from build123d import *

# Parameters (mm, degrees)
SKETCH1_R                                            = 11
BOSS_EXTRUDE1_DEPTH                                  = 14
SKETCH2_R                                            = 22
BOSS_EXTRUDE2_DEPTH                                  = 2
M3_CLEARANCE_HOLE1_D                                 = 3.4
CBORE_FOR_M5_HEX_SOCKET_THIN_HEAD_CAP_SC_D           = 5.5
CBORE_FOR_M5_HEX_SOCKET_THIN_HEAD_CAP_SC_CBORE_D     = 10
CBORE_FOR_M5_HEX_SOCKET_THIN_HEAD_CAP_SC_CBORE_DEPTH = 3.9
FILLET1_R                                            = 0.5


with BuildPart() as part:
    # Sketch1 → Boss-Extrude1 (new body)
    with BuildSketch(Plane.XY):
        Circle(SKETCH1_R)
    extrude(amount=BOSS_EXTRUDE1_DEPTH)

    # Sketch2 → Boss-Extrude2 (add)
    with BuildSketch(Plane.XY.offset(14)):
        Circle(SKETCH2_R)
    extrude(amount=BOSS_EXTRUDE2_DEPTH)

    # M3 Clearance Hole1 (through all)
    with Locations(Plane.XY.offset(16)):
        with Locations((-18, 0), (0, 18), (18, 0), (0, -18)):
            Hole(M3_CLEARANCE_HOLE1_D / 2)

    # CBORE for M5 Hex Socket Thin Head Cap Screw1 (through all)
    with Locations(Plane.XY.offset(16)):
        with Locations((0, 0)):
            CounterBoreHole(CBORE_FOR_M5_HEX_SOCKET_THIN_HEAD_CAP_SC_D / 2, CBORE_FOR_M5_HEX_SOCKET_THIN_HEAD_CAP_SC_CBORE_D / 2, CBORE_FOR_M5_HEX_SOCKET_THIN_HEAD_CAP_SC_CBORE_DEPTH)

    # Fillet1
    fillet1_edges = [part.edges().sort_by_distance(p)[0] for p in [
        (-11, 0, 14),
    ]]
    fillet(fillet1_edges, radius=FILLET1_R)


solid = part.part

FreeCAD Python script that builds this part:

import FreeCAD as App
import Part
import Sketcher


def edges_at(feature, points):
    """Names of the edges that pass closest to the given points."""
    edges = feature.Shape.Edges
    near = lambda p: min(range(len(edges)), key=lambda i: edges[i].distToShape(Part.Vertex(*p))[0])
    return sorted({f"Edge{near(p) + 1}" for p in points})

doc = App.newDocument("Part")
body = doc.addObject("PartDesign::Body", "Body")

# Sketch on XY plane
sketch1 = body.newObject("Sketcher::SketchObject", "Sketch")
sketch1.AttachmentSupport = (doc.getObject("XY_Plane"), [""])
sketch1.MapMode = "FlatFace"
sketch1.addGeometry(Part.Circle(App.Vector(0, 0, 0), App.Vector(0, 0, 1), 11), False)
sketch1.addConstraint([
    Sketcher.Constraint("Coincident", 0, 3, -1, 1),
    Sketcher.Constraint("Diameter", 0, 22.0),
])
pad1 = body.newObject("PartDesign::Pad", "Pad")
pad1.Profile = sketch1
pad1.Length = 14

# Sketch on XY plane
sketch2 = body.newObject("Sketcher::SketchObject", "Sketch001")
sketch2.AttachmentSupport = (doc.getObject("XY_Plane"), [""])
sketch2.MapMode = "FlatFace"
sketch2.AttachmentOffset = App.Placement(App.Vector(0, 0, 14), App.Rotation())
sketch2.addGeometry(Part.Circle(App.Vector(0, 0, 0), App.Vector(0, 0, 1), 22), False)
sketch2.addConstraint([
    Sketcher.Constraint("Coincident", 0, 3, -1, 1),
    Sketcher.Constraint("Diameter", 0, 44.0),
])
pad2 = body.newObject("PartDesign::Pad", "Pad001")
pad2.Profile = sketch2
pad2.Length = 2

# Sketch on XY plane
sketch3 = body.newObject("Sketcher::SketchObject", "Sketch002")
sketch3.AttachmentSupport = (doc.getObject("XY_Plane"), [""])
sketch3.MapMode = "FlatFace"
sketch3.AttachmentOffset = App.Placement(App.Vector(0, 0, 16), App.Rotation())
sketch3.addGeometry([
    Part.Circle(App.Vector(-18, 0, 0), App.Vector(0, 0, 1), 1.7),
    Part.Circle(App.Vector(0, 18, 0), App.Vector(0, 0, 1), 1.7),
    Part.Circle(App.Vector(18, 0, 0), App.Vector(0, 0, 1), 1.7),
    Part.Circle(App.Vector(0, -18, 0), App.Vector(0, 0, 1), 1.7),
], False)
sketch3.addConstraint([
    Sketcher.Constraint("Equal", 0, 1),
    Sketcher.Constraint("Equal", 1, 2),
    Sketcher.Constraint("Equal", 2, 3),
    Sketcher.Constraint("Symmetric", 0, 3, 2, 3, -1, 1),
    Sketcher.Constraint("Symmetric", 1, 3, 3, 3, -1, 1),
    Sketcher.Constraint("PointOnObject", 0, 3, -1),
    Sketcher.Constraint("PointOnObject", 1, 3, -2),
    Sketcher.Constraint("Diameter", 0, 3.4),
    Sketcher.Constraint("DistanceX", 0, 3, -1, 1, 18.0),
    Sketcher.Constraint("DistanceY", -1, 1, 1, 3, 18.0),
])
doc.recompute()
hole = body.newObject("PartDesign::Hole", "Hole")
hole.Profile = sketch3
hole.ThreadType = "None"
hole.Diameter = 3.4
hole.DepthType = "ThroughAll"

# Sketch on XY plane
sketch4 = body.newObject("Sketcher::SketchObject", "Sketch003")
sketch4.AttachmentSupport = (doc.getObject("XY_Plane"), [""])
sketch4.MapMode = "FlatFace"
sketch4.AttachmentOffset = App.Placement(App.Vector(0, 0, 16), App.Rotation())
sketch4.addGeometry(Part.Circle(App.Vector(0, 0, 0), App.Vector(0, 0, 1), 2.8), False)
sketch4.addConstraint([
    Sketcher.Constraint("Coincident", 0, 3, -1, 1),
    Sketcher.Constraint("Diameter", 0, 5.5),
])
doc.recompute()
hole2 = body.newObject("PartDesign::Hole", "Hole001")
hole2.Profile = sketch4
hole2.ThreadType = "None"
hole2.Diameter = 5.5
hole2.DepthType = "ThroughAll"
hole2.HoleCutType = "Counterbore"
hole2.HoleCutDiameter = 10
hole2.HoleCutDepth = 3.9
doc.recompute()

fillet = body.newObject("PartDesign::Fillet", "Fillet")
fillet.Base = (hole2, edges_at(hole2, [(-11, 0, 14)]))
fillet.Radius = 0.5

doc.recompute()
